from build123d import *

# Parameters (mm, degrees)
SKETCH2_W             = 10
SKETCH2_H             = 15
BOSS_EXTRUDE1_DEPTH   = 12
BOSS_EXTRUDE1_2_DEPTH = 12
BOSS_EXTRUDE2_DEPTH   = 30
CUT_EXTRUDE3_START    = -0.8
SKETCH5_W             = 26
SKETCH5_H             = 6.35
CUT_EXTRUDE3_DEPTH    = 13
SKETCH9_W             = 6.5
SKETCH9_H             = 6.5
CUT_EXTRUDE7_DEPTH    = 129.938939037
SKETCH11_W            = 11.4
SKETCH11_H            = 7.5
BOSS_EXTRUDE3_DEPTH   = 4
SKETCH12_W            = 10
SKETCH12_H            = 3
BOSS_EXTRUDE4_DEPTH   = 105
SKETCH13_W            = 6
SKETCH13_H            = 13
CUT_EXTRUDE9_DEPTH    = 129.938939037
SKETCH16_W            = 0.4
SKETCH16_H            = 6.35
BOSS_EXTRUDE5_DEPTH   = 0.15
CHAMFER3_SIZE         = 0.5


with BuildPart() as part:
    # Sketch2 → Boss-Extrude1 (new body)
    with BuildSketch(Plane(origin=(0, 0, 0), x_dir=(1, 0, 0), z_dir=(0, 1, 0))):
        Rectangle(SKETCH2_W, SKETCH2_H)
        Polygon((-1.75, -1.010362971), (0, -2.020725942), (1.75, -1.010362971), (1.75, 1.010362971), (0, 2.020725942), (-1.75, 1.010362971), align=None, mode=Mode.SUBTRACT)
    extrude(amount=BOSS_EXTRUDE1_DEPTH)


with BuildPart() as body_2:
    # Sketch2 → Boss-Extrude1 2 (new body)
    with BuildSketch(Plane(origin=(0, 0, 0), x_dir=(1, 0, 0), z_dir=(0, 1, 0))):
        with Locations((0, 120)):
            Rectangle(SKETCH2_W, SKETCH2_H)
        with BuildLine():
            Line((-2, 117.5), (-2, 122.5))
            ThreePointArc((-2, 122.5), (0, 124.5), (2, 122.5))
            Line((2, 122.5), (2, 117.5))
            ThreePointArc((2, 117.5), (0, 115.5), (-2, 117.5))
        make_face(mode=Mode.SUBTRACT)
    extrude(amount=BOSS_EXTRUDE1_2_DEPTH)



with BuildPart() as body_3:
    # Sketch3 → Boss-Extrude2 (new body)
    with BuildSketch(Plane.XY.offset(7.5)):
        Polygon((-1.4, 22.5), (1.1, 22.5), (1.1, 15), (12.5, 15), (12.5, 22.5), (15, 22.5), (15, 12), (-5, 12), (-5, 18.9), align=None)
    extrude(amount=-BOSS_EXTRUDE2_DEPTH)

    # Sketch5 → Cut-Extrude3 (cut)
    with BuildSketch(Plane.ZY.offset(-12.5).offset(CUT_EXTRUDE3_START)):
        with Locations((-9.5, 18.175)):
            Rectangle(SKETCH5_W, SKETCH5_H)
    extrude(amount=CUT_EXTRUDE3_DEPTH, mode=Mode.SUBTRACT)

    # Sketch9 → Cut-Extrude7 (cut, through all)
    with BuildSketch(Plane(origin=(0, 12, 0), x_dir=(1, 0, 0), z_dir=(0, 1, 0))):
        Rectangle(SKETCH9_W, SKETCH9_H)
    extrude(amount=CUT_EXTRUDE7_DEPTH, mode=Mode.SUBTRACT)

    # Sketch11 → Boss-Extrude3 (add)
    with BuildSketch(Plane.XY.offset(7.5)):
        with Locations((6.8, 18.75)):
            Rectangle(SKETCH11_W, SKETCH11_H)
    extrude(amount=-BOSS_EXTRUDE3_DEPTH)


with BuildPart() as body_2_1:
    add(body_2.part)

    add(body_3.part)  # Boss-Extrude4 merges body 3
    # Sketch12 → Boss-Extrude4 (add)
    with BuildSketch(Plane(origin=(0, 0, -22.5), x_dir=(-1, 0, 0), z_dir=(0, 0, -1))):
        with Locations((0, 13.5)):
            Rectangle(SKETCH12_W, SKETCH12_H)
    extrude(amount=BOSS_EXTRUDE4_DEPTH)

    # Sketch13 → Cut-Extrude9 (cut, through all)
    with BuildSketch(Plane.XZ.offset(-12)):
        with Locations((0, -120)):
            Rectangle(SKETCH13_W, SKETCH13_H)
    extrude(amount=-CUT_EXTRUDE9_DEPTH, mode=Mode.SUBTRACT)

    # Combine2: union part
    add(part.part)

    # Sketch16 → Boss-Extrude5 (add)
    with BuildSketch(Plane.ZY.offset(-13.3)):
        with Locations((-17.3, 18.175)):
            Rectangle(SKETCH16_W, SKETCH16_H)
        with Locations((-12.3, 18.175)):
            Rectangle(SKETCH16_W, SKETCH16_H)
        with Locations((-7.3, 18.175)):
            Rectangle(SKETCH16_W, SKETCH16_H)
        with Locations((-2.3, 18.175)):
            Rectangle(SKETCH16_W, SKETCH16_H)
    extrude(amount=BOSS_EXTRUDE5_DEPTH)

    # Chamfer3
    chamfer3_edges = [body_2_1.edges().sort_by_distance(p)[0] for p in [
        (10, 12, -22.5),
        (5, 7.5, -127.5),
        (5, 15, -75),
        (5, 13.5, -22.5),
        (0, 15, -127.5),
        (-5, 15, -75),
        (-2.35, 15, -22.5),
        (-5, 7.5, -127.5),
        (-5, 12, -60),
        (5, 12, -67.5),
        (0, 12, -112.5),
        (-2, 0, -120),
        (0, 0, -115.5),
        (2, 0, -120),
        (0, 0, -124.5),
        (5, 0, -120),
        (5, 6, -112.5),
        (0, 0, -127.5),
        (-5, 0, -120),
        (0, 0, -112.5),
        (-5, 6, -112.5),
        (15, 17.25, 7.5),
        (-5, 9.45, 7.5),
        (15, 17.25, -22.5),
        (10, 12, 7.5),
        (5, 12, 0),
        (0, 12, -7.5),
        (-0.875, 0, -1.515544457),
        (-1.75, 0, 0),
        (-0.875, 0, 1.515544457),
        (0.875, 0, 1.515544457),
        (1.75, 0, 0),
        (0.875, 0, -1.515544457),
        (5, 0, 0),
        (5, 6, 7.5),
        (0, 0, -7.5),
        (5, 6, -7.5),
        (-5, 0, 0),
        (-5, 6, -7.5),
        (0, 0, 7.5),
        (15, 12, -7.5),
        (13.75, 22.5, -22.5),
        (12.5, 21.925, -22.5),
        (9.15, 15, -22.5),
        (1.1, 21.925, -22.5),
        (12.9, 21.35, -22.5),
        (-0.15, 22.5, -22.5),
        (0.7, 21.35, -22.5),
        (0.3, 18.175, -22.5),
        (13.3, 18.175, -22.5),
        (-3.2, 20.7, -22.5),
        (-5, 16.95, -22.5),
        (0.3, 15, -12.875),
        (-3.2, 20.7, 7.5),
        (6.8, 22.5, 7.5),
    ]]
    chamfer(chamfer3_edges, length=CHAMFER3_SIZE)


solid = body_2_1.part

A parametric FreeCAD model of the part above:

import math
import FreeCAD as App
import Part
import Sketcher

V = App.Vector
Q = App.Units.Quantity


def edges_at(feature, points):
    """Names of the edges that pass closest to the given points."""
    edges = feature.Shape.Edges
    near = lambda p: min(range(len(edges)), key=lambda i: edges[i].distToShape(Part.Vertex(*p))[0])
    return sorted({f"Edge{near(p) + 1}" for p in points})

doc = App.newDocument("Part")
body = doc.addObject("PartDesign::Body", "Body")

sketch1 = body.newObject("Sketcher::SketchObject", "Sketch")
sketch1.AttachmentSupport = (doc.getObject("XZ_Plane"), [""])
sketch1.MapMode = "FlatFace"
sketch1.addGeometry([
    Part.LineSegment(V(-5, -7.5, 0), V(-5, 7.5, 0)),
    Part.LineSegment(V(-5, 7.5, 0), V(5, 7.5, 0)),
    Part.LineSegment(V(5, 7.5, 0), V(5, -7.5, 0)),
    Part.LineSegment(V(5, -7.5, 0), V(-5, -7.5, 0)),
    Part.LineSegment(V(0, 2, 0), V(-1.8, 1, 0)),
    Part.LineSegment(V(-1.8, 1, 0), V(-1.8, -1, 0)),
    Part.LineSegment(V(-1.8, -1, 0), V(0, -2, 0)),
    Part.LineSegment(V(0, -2, 0), V(1.8, -1, 0)),
    Part.LineSegment(V(1.8, -1, 0), V(1.8, 1, 0)),
    Part.LineSegment(V(1.8, 1, 0), V(0, 2, 0)),
], False)
sketch1.addConstraint([
    Sketcher.Constraint("Coincident", 0, 2, 1, 1),
    Sketcher.Constraint("Coincident", 1, 2, 2, 1),
    Sketcher.Constraint("Coincident", 2, 2, 3, 1),
    Sketcher.Constraint("Coincident", 3, 2, 0, 1),
    Sketcher.Constraint("Coincident", 4, 2, 5, 1),
    Sketcher.Constraint("Coincident", 5, 2, 6, 1),
    Sketcher.Constraint("Coincident", 6, 2, 7, 1),
    Sketcher.Constraint("Coincident", 7, 2, 8, 1),
    Sketcher.Constraint("Coincident", 8, 2, 9, 1),
    Sketcher.Constraint("Coincident", 9, 2, 4, 1),
    Sketcher.Constraint("Vertical", 0),
    Sketcher.Constraint("Horizontal", 1),
    Sketcher.Constraint("Vertical", 2),
    Sketcher.Constraint("Horizontal", 3),
    Sketcher.Constraint("Vertical", 5),
    Sketcher.Constraint("Vertical", 8),
    Sketcher.Constraint("Symmetric", 0, 2, 2, 2, -1, 1),
    Sketcher.Constraint("Symmetric", 4, 2, 7, 2, -1, 1),
    Sketcher.Constraint("Symmetric", 6, 2, 9, 2, -1, 1),
    Sketcher.Constraint("PointOnObject", 6, 2, -2),
    Sketcher.Constraint("Parallel", 6, 9),
    Sketcher.Constraint("Horizontal", 5, 2, 7, 2),
    Sketcher.Constraint("DistanceX", 1, 1, 1, 2, 10.0),
    Sketcher.Constraint("DistanceY", 0, 1, 0, 2, 15.0),
    Sketcher.Constraint("Angle", 4, Q("-150 deg")),
    Sketcher.Constraint("DistanceX", 5, 2, 7, 2, 3.5),
    Sketcher.Constraint("DistanceY", 5, 2, 5, 1, 2.020726),
])
pad1 = body.newObject("PartDesign::Pad", "Pad")
pad1.Profile = sketch1
pad1.Length = 12
pad1.Reversed = True
body2 = doc.addObject("PartDesign::Body", "Body001")

sketch2 = body2.newObject("Sketcher::SketchObject", "Sketch001")
sketch2.AttachmentSupport = (doc.getObject("XZ_Plane001"), [""])
sketch2.MapMode = "FlatFace"
sketch2.addGeometry([
    Part.LineSegment(V(-5, -127.5, 0), V(-5, -112.5, 0)),
    Part.LineSegment(V(-5, -112.5, 0), V(5, -112.5, 0)),
    Part.LineSegment(V(5, -112.5, 0), V(5, -127.5, 0)),
    Part.LineSegment(V(5, -127.5, 0), V(-5, -127.5, 0)),
    Part.ArcOfCircle(Part.Circle(V(0, -117.5, 0), V(0, 0, 1), 2), math.radians(0), math.radians(180)),
    Part.LineSegment(V(-2, -117.5, 0), V(-2, -122.5, 0)),
    Part.ArcOfCircle(Part.Circle(V(0, -122.5, 0), V(0, 0, 1), 2), math.radians(180), math.radians(360)),
    Part.LineSegment(V(2, -122.5, 0), V(2, -117.5, 0)),
], False)
sketch2.addConstraint([
    Sketcher.Constraint("Coincident", 0, 2, 1, 1),
    Sketcher.Constraint("Coincident", 1, 2, 2, 1),
    Sketcher.Constraint("Coincident", 2, 2, 3, 1),
    Sketcher.Constraint("Coincident", 3, 2, 0, 1),
    Sketcher.Constraint("Tangent", 4, 2, 5, 1),
    Sketcher.Constraint("Tangent", 5, 2, 6, 1),
    Sketcher.Constraint("Tangent", 6, 2, 7, 1),
    Sketcher.Constraint("Tangent", 7, 2, 4, 1),
    Sketcher.Constraint("Vertical", 0),
    Sketcher.Constraint("Horizontal", 1),
    Sketcher.Constraint("Vertical", 2),
    Sketcher.Constraint("Horizontal", 3),
    Sketcher.Constraint("Vertical", 5),
    Sketcher.Constraint("Vertical", 7),
    Sketcher.Constraint("PointOnObject", 4, 3, -2),
    Sketcher.Constraint("Radius", 4, 2.0),
    Sketcher.Constraint("DistanceX", 1, 1, 1, 2, 10.0),
    Sketcher.Constraint("DistanceY", 0, 1, 0, 2, 15.0),
    Sketcher.Constraint("DistanceY", 5, 2, 5, 1, 5.0),
    Sketcher.Constraint("DistanceX", 0, 2, -1, 1, 5.0),
    Sketcher.Constraint("DistanceY", 4, 3, 0, 2, 5.0),
    Sketcher.Constraint("DistanceY", 4, 3, -1, 1, 117.5),
])
pad2 = body2.newObject("PartDesign::Pad", "Pad001")
pad2.Profile = sketch2
pad2.Length = 12
pad2.Reversed = True
body3 = doc.addObject("PartDesign::Body", "Body002")

sketch3 = body3.newObject("Sketcher::SketchObject", "Sketch002")
sketch3.AttachmentSupport = (doc.getObject("XY_Plane002"), [""])
sketch3.MapMode = "FlatFace"
sketch3.AttachmentOffset = App.Placement(V(0, 0, 7.5), App.Rotation())
sketch3.addGeometry([
    Part.LineSegment(V(1.1, 22.5, 0), V(-1.4, 22.5, 0)),
    Part.LineSegment(V(-1.4, 22.5, 0), V(-5, 18.9, 0)),
    Part.LineSegment(V(-5, 18.9, 0), V(-5, 12, 0)),
    Part.LineSegment(V(-5, 12, 0), V(15, 12, 0)),
    Part.LineSegment(V(15, 12, 0), V(15, 22.5, 0)),
    Part.LineSegment(V(15, 22.5, 0), V(12.5, 22.5, 0)),
    Part.LineSegment(V(12.5, 22.5, 0), V(12.5, 15, 0)),
    Part.LineSegment(V(12.5, 15, 0), V(1.1, 15, 0)),
    Part.LineSegment(V(1.1, 15, 0), V(1.1, 22.5, 0)),
], False)
sketch3.addConstraint([
    Sketcher.Constraint("Coincident", 0, 2, 1, 1),
    Sketcher.Constraint("Coincident", 1, 2, 2, 1),
    Sketcher.Constraint("Coincident", 2, 2, 3, 1),
    Sketcher.Constraint("Coincident", 3, 2, 4, 1),
    Sketcher.Constraint("Coincident", 4, 2, 5, 1),
    Sketcher.Constraint("Coincident", 5, 2, 6, 1),
    Sketcher.Constraint("Coincident", 6, 2, 7, 1),
    Sketcher.Constraint("Coincident", 7, 2, 8, 1),
    Sketcher.Constraint("Coincident", 8, 2, 0, 1),
    Sketcher.Constraint("Horizontal", 0),
    Sketcher.Constraint("Vertical", 2),
    Sketcher.Constraint("Horizontal", 3),
    Sketcher.Constraint("Vertical", 4),
    Sketcher.Constraint("Horizontal", 5),
    Sketcher.Constraint("Vertical", 6),
    Sketcher.Constraint("Horizontal", 7),
    Sketcher.Constraint("Vertical", 8),
    Sketcher.Constraint("Horizontal", 0, 2, 4, 2),
    Sketcher.Constraint("Equal", 0, 5),
    Sketcher.Constraint("DistanceX", 3, 1, 3, 2, 20.0),
    Sketcher.Constraint("Angle", 1, Q("-135 deg")),
    Sketcher.Constraint("DistanceX", 0, 2, 0, 1, 2.5),
    Sketcher.Constraint("DistanceX", 7, 2, 7, 1, 11.4),
    Sketcher.Constraint("DistanceY", 2, 2, 2, 1, 6.9),
    Sketcher.Constraint("DistanceY", 6, 2, 6, 1, 7.5),
    Sketcher.Constraint("DistanceX", 1, 2, -1, 1, 5.0),
    Sketcher.Constraint("DistanceY", -1, 1, 2, 2, 12.0),
])
pad3 = body3.newObject("PartDesign::Pad", "Pad002")
pad3.Profile = sketch3
pad3.Length = 30
pad3.Reversed = True

sketch4 = body3.newObject("Sketcher::SketchObject", "Sketch003")
sketch4.AttachmentSupport = (doc.getObject("YZ_Plane002"), [""])
sketch4.MapMode = "FlatFace"
sketch4.AttachmentOffset = App.Placement(V(0, 0, 13.3), App.Rotation())
sketch4.addGeometry([
    Part.LineSegment(V(21, -22, 0), V(15, -22, 0)),
    Part.LineSegment(V(15, -22, 0), V(15, 4, 0)),
    Part.LineSegment(V(15, 4, 0), V(21, 4, 0)),
    Part.LineSegment(V(21, 4, 0), V(21, -22, 0)),
], False)
sketch4.addConstraint([
    Sketcher.Constraint("Coincident", 0, 2, 1, 1),
    Sketcher.Constraint("Coincident", 1, 2, 2, 1),
    Sketcher.Constraint("Coincident", 2, 2, 3, 1),
    Sketcher.Constraint("Coincident", 3, 2, 0, 1),
    Sketcher.Constraint("Horizontal", 0),
    Sketcher.Constraint("Vertical", 1),
    Sketcher.Constraint("Horizontal", 2),
    Sketcher.Constraint("Vertical", 3),
    Sketcher.Constraint("DistanceY", 1, 1, 1, 2, 26.0),
    Sketcher.Constraint("DistanceX", -1, 1, 0, 2, 15.0),
    Sketcher.Constraint("DistanceX", 0, 2, 0, 1, 6.35),
    Sketcher.Constraint("DistanceY", 0, 2, -1, 1, 22.5),
])
pocket1 = body3.newObject("PartDesign::Pocket", "Pocket")
pocket1.Profile = sketch4
pocket1.Length = 13

sketch5 = body3.newObject("Sketcher::SketchObject", "Sketch004")
sketch5.AttachmentSupport = (doc.getObject("XZ_Plane002"), [""])
sketch5.MapMode = "FlatFace"
sketch5.AttachmentOffset = App.Placement(V(0, 0, -12), App.Rotation())
sketch5.addGeometry([
    Part.LineSegment(V(-3, -3, 0), V(-3, 3, 0)),
    Part.LineSegment(V(-3, 3, 0), V(3, 3, 0)),
    Part.LineSegment(V(3, 3, 0), V(3, -3, 0)),
    Part.LineSegment(V(3, -3, 0), V(-3, -3, 0)),
], False)
sketch5.addConstraint([
    Sketcher.Constraint("Coincident", 0, 2, 1, 1),
    Sketcher.Constraint("Coincident", 1, 2, 2, 1),
    Sketcher.Constraint("Coincident", 2, 2, 3, 1),
    Sketcher.Constraint("Coincident", 3, 2, 0, 1),
    Sketcher.Constraint("Vertical", 0),
    Sketcher.Constraint("Horizontal", 1),
    Sketcher.Constraint("Vertical", 2),
    Sketcher.Constraint("Horizontal", 3),
    Sketcher.Constraint("Symmetric", 0, 2, 2, 2, -1, 1),
    Sketcher.Constraint("Equal", 3, 0),
    Sketcher.Constraint("DistanceX", 1, 1, 1, 2, 6.5),
])
pocket2 = body3.newObject("PartDesign::Pocket", "Pocket001")
pocket2.Profile = sketch5
pocket2.Type = "ThroughAll"

sketch6 = body3.newObject("Sketcher::SketchObject", "Sketch005")
sketch6.AttachmentSupport = (doc.getObject("XY_Plane002"), [""])
sketch6.MapMode = "FlatFace"
sketch6.AttachmentOffset = App.Placement(V(0, 0, 7.5), App.Rotation())
sketch6.addGeometry([
    Part.LineSegment(V(1, 22, 0), V(1, 15, 0)),
    Part.LineSegment(V(1, 15, 0), V(12, 15, 0)),
    Part.LineSegment(V(12, 15, 0), V(12, 22, 0)),
    Part.LineSegment(V(12, 22, 0), V(1, 22, 0)),
], False)
sketch6.addConstraint([
    Sketcher.Constraint("Coincident", 0, 2, 1, 1),
    Sketcher.Constraint("Coincident", 1, 2, 2, 1),
    Sketcher.Constraint("Coincident", 2, 2, 3, 1),
    Sketcher.Constraint("Coincident", 3, 2, 0, 1),
    Sketcher.Constraint("Vertical", 0),
    Sketcher.Constraint("Horizontal", 1),
    Sketcher.Constraint("Vertical", 2),
    Sketcher.Constraint("Horizontal", 3),
    Sketcher.Constraint("DistanceX", 1, 1, 1, 2, 11.4),
    Sketcher.Constraint("DistanceY", 0, 2, 0, 1, 7.5),
    Sketcher.Constraint("DistanceY", -1, 1, 0, 2, 15.0),
    Sketcher.Constraint("DistanceX", -1, 1, 0, 2, 1.1),
])
pad4 = body3.newObject("PartDesign::Pad", "Pad003")
pad4.Profile = sketch6
pad4.Length = 4
pad4.Reversed = True
body2.AllowCompound = True
doc.recompute()

boolean = body2.newObject("PartDesign::Boolean", "Boolean")
boolean.Type = "Fuse"
boolean.addObjects([body3])

sketch7 = body2.newObject("Sketcher::SketchObject", "Sketch006")
sketch7.AttachmentSupport = (doc.getObject("XY_Plane001"), [""])
sketch7.MapMode = "FlatFace"
sketch7.AttachmentOffset = App.Placement(V(0, 0, -22.5), App.Rotation())
sketch7.addGeometry([
    Part.LineSegment(V(5, 15, 0), V(5, 12, 0)),
    Part.LineSegment(V(5, 12, 0), V(-5, 12, 0)),
    Part.LineSegment(V(-5, 12, 0), V(-5, 15, 0)),
    Part.LineSegment(V(-5, 15, 0), V(5, 15, 0)),
], False)
sketch7.addConstraint([
    Sketcher.Constraint("Coincident", 0, 2, 1, 1),
    Sketcher.Constraint("Coincident", 1, 2, 2, 1),
    Sketcher.Constraint("Coincident", 2, 2, 3, 1),
    Sketcher.Constraint("Coincident", 3, 2, 0, 1),
    Sketcher.Constraint("Vertical", 0),
    Sketcher.Constraint("Horizontal", 1),
    Sketcher.Constraint("Vertical", 2),
    Sketcher.Constraint("Horizontal", 3),
    Sketcher.Constraint("DistanceX", 1, 2, 1, 1, 10.0),
    Sketcher.Constraint("DistanceY", 0, 2, 0, 1, 3.0),
    Sketcher.Constraint("DistanceX", -1, 1, 0, 2, 5.0),
    Sketcher.Constraint("DistanceY", -1, 1, 0, 2, 12.0),
])
pad5 = body2.newObject("PartDesign::Pad", "Pad004")
pad5.Profile = sketch7
pad5.Length = 105
pad5.Reversed = True

sketch8 = body2.newObject("Sketcher::SketchObject", "Sketch007")
sketch8.AttachmentSupport = (doc.getObject("XZ_Plane001"), [""])
sketch8.MapMode = "FlatFace"
sketch8.AttachmentOffset = App.Placement(V(0, 0, -12), App.Rotation())
sketch8.addGeometry([
    Part.LineSegment(V(-3, -114, 0), V(-3, -126, 0)),
    Part.LineSegment(V(-3, -126, 0), V(3, -126, 0)),
    Part.LineSegment(V(3, -126, 0), V(3, -114, 0)),
    Part.LineSegment(V(3, -114, 0), V(-3, -114, 0)),
], False)
sketch8.addConstraint([
    Sketcher.Constraint("Coincident", 0, 2, 1, 1),
    Sketcher.Constraint("Coincident", 1, 2, 2, 1),
    Sketcher.Constraint("Coincident", 2, 2, 3, 1),
    Sketcher.Constraint("Coincident", 3, 2, 0, 1),
    Sketcher.Constraint("Vertical", 0),
    Sketcher.Constraint("Horizontal", 1),
    Sketcher.Constraint("Vertical", 2),
    Sketcher.Constraint("Horizontal", 3),
    Sketcher.Constraint("DistanceX", 1, 1, 1, 2, 6.0),
    Sketcher.Constraint("DistanceY", 0, 2, 0, 1, 13.0),
    Sketcher.Constraint("DistanceX", 0, 2, -1, 1, 3.0),
    Sketcher.Constraint("DistanceY", 0, 2, -1, 1, 126.5),
])
pocket3 = body2.newObject("PartDesign::Pocket", "Pocket002")
pocket3.Profile = sketch8
pocket3.Type = "ThroughAll"
doc.recompute()

boolean2 = body2.newObject("PartDesign::Boolean", "Boolean001")
boolean2.Type = "Fuse"
boolean2.addObjects([body])

sketch9 = body2.newObject("Sketcher::SketchObject", "Sketch008")
sketch9.AttachmentSupport = (doc.getObject("YZ_Plane001"), [""])
sketch9.MapMode = "FlatFace"
sketch9.AttachmentOffset = App.Placement(V(0, 0, 13.3), App.Rotation())
sketch9.addGeometry([
    Part.LineSegment(V(21.35, -17.5, 0), V(15, -17.5, 0)),
    Part.LineSegment(V(15, -17.5, 0), V(15, -17.1, 0)),
    Part.LineSegment(V(15, -17.1, 0), V(21.35, -17.1, 0)),
    Part.LineSegment(V(21.35, -17.1, 0), V(21.35, -17.5, 0)),
    Part.LineSegment(V(21.35, -12.5, 0), V(15, -12.5, 0)),
    Part.LineSegment(V(15, -12.5, 0), V(15, -12.1, 0)),
    Part.LineSegment(V(15, -12.1, 0), V(21.35, -12.1, 0)),
    Part.LineSegment(V(21.35, -12.1, 0), V(21.35, -12.5, 0)),
    Part.LineSegment(V(21.35, -7.5, 0), V(15, -7.5, 0)),
    Part.LineSegment(V(15, -7.5, 0), V(15, -7.1, 0)),
    Part.LineSegment(V(15, -7.1, 0), V(21.35, -7.1, 0)),
    Part.LineSegment(V(21.35, -7.1, 0), V(21.35, -7.5, 0)),
    Part.LineSegment(V(21.35, -2.5, 0), V(15, -2.5, 0)),
    Part.LineSegment(V(15, -2.5, 0), V(15, -2.1, 0)),
    Part.LineSegment(V(15, -2.1, 0), V(21.35, -2.1, 0)),
    Part.LineSegment(V(21.35, -2.1, 0), V(21.35, -2.5, 0)),
], False)
sketch9.addConstraint([
    Sketcher.Constraint("Coincident", 0, 2, 1, 1),
    Sketcher.Constraint("Coincident", 1, 2, 2, 1),
    Sketcher.Constraint("Coincident", 2, 2, 3, 1),
    Sketcher.Constraint("Coincident", 3, 2, 0, 1),
    Sketcher.Constraint("Coincident", 4, 2, 5, 1),
    Sketcher.Constraint("Coincident", 5, 2, 6, 1),
    Sketcher.Constraint("Coincident", 6, 2, 7, 1),
    Sketcher.Constraint("Coincident", 7, 2, 4, 1),
    Sketcher.Constraint("Coincident", 8, 2, 9, 1),
    Sketcher.Constraint("Coincident", 9, 2, 10, 1),
    Sketcher.Constraint("Coincident", 10, 2, 11, 1),
    Sketcher.Constraint("Coincident", 11, 2, 8, 1),
    Sketcher.Constraint("Coincident", 12, 2, 13, 1),
    Sketcher.Constraint("Coincident", 13, 2, 14, 1),
    Sketcher.Constraint("Coincident", 14, 2, 15, 1),
    Sketcher.Constraint("Coincident", 15, 2, 12, 1),
    Sketcher.Constraint("Horizontal", 0),
    Sketcher.Constraint("Vertical", 1),
    Sketcher.Constraint("Horizontal", 2),
    Sketcher.Constraint("Vertical", 3),
    Sketcher.Constraint("Horizontal", 4),
    Sketcher.Constraint("Vertical", 5),
    Sketcher.Constraint("Horizontal", 6),
    Sketcher.Constraint("Vertical", 7),
    Sketcher.Constraint("Horizontal", 8),
    Sketcher.Constraint("Vertical", 9),
    Sketcher.Constraint("Horizontal", 10),
    Sketcher.Constraint("Vertical", 11),
    Sketcher.Constraint("Horizontal", 12),
    Sketcher.Constraint("Vertical", 13),
    Sketcher.Constraint("Horizontal", 14),
    Sketcher.Constraint("Vertical", 15),
    Sketcher.Constraint("Vertical", 1, 2, 4, 2),
    Sketcher.Constraint("Vertical", 3, 2, 6, 2),
    Sketcher.Constraint("Vertical", 5, 2, 8, 2),
    Sketcher.Constraint("Vertical", 7, 2, 10, 2),
    Sketcher.Constraint("Vertical", 9, 2, 12, 2),
    Sketcher.Constraint("Vertical", 11, 2, 14, 2),
    Sketcher.Constraint("Equal", 3, 5),
    Sketcher.Constraint("Equal", 7, 9),
    Sketcher.Constraint("Equal", 11, 13),
    Sketcher.Constraint("DistanceY", 1, 1, 1, 2, 0.4),
    Sketcher.Constraint("DistanceX", -1, 1, 0, 2, 15.0),
    Sketcher.Constraint("DistanceY", 0, 2, 4, 2, 5.0),
    Sketcher.Constraint("DistanceY", 4, 2, 8, 2, 5.0),
    Sketcher.Constraint("DistanceY", 8, 2, 12, 2, 5.0),
    Sketcher.Constraint("DistanceX", 0, 2, 0, 1, 6.35),
    Sketcher.Constraint("DistanceY", 0, 2, -1, 1, 17.5),
])
pad6 = body2.newObject("PartDesign::Pad", "Pad005")
pad6.Profile = sketch9
pad6.Length = 0.15
pad6.Reversed = True
doc.recompute()

chamfer = body2.newObject("PartDesign::Chamfer", "Chamfer")
chamfer.Base = (pad6, edges_at(pad6, [
    (10, 12, -22.5),
    (5, 7.5, -127.5),
    (5, 15, -75),
    (5, 13.5, -22.5),
    (0, 15, -127.5),
    (-5, 15, -75),
    (-2.35, 15, -22.5),
    (-5, 7.5, -127.5),
    (-5, 12, -60),
    (5, 12, -67.5),
    (0, 12, -112.5),
    (-2, 0, -120),
    (0, 0, -115.5),
    (2, 0, -120),
    (0, 0, -124.5),
    (5, 0, -120),
    (5, 6, -112.5),
    (0, 0, -127.5),
    (-5, 0, -120),
    (0, 0, -112.5),
    (-5, 6, -112.5),
    (15, 17.25, 7.5),
    (-5, 9.45, 7.5),
    (15, 17.25, -22.5),
    (10, 12, 7.5),
    (5, 12, 0),
    (0, 12, -7.5),
    (-0.875, 0, -1.516),
    (-1.75, 0, 0),
    (-0.875, 0, 1.516),
    (0.875, 0, 1.516),
    (1.75, 0, 0),
    (0.875, 0, -1.516),
    (5, 0, 0),
    (5, 6, 7.5),
    (0, 0, -7.5),
    (5, 6, -7.5),
    (-5, 0, 0),
    (-5, 6, -7.5),
    (0, 0, 7.5),
    (15, 12, -7.5),
    (13.75, 22.5, -22.5),
    (12.5, 21.925, -22.5),
    (9.15, 15, -22.5),
    (1.1, 21.925, -22.5),
    (12.9, 21.35, -22.5),
    (-0.15, 22.5, -22.5),
    (0.7, 21.35, -22.5),
    (0.3, 18.175, -22.5),
    (13.3, 18.175, -22.5),
    (-3.2, 20.7, -22.5),
    (-5, 16.95, -22.5),
    (0.3, 15, -12.875),
    (-3.2, 20.7, 7.5),
    (6.8, 22.5, 7.5),
]))
chamfer.Size = 0.5

doc.recompute()
